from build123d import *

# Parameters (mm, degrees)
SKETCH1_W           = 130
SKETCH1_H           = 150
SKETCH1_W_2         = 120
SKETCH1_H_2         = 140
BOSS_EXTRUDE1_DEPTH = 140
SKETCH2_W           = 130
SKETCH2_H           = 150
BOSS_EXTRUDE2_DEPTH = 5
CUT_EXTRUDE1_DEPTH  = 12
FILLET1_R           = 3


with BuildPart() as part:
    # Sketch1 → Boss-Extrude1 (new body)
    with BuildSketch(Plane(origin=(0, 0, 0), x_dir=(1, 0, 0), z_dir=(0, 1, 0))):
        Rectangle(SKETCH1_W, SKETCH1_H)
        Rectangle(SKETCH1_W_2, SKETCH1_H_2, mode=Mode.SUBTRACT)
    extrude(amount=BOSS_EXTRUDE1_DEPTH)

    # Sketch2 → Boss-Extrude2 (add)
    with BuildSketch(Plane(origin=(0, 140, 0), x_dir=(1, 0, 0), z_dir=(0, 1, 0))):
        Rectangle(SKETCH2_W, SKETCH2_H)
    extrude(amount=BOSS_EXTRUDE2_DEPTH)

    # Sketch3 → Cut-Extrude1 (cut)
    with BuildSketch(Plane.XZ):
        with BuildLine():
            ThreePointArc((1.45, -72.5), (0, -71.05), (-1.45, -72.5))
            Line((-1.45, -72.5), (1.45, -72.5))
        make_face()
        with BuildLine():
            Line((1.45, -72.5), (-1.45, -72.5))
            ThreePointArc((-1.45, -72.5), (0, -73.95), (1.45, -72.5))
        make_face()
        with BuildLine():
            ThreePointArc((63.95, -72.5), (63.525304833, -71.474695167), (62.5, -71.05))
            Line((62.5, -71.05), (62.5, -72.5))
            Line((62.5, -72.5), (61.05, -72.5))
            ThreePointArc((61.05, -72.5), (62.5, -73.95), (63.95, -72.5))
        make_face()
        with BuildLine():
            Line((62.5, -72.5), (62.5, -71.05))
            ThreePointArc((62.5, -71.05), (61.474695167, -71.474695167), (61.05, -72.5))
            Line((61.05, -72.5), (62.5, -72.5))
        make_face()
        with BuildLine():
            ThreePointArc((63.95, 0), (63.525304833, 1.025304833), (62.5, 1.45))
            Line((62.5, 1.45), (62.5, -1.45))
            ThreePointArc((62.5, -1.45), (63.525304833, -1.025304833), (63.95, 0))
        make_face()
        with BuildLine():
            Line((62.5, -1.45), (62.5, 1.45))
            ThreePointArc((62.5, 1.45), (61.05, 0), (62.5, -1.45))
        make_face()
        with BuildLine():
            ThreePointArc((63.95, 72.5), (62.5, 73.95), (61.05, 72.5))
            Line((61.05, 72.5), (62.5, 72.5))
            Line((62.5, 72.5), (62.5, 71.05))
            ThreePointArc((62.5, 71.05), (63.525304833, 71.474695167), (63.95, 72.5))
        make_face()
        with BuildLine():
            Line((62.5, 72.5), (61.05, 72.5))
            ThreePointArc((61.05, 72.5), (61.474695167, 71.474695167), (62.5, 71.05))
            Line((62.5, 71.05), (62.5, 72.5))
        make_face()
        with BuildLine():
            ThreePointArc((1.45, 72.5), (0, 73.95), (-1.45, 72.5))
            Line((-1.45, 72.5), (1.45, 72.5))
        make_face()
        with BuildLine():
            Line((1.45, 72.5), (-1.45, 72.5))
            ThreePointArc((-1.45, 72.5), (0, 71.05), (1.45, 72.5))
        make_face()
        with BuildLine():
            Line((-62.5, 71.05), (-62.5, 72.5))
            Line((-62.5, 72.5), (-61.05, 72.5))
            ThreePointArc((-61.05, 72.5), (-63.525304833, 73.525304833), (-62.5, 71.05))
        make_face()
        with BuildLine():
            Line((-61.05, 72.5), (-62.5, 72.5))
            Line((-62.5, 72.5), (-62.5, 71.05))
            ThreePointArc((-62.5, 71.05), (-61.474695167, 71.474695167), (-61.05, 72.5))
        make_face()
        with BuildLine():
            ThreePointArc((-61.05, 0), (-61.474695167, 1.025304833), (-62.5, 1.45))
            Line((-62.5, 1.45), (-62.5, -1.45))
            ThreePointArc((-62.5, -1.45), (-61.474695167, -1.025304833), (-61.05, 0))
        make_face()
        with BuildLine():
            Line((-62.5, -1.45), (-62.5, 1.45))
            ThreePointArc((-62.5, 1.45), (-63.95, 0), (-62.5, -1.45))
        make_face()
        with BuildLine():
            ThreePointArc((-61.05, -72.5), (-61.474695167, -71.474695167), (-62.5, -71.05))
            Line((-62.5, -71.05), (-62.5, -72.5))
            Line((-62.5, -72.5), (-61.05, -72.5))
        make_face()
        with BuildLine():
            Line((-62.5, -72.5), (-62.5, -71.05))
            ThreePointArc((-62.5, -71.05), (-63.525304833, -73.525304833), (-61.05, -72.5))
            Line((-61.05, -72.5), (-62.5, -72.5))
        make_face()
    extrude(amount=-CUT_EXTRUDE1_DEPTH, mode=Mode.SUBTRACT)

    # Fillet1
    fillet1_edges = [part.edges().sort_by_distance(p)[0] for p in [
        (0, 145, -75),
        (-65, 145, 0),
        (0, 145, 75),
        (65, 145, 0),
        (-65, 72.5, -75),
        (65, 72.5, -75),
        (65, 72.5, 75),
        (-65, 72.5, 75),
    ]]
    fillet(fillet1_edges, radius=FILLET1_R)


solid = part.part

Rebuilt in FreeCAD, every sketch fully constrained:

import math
import FreeCAD as App
import Part
import Sketcher

V = App.Vector


def edges_at(feature, points):
    """Names of the edges that pass closest to the given points."""
    edges = feature.Shape.Edges
    near = lambda p: min(range(len(edges)), key=lambda i: edges[i].distToShape(Part.Vertex(*p))[0])
    return sorted({f"Edge{near(p) + 1}" for p in points})


def add_polygon(sketch, points):
    """Adds a closed chain of lines whose ends are joined by coincident constraints."""
    first, n = sketch.GeometryCount, len(points)
    for a, b in zip(points, points[1:] + points[:1]):
        sketch.addGeometry(Part.LineSegment(App.Vector(*a, 0), App.Vector(*b, 0)), False)
    for i in range(n):
        sketch.addConstraint(Sketcher.Constraint("Coincident", first + i, 2, first + (i + 1) % n, 1))

doc = App.newDocument("Part")
body = doc.addObject("PartDesign::Body", "Body")

sketch1 = body.newObject("Sketcher::SketchObject", "Sketch")
sketch1.AttachmentSupport = (doc.getObject("XZ_Plane"), [""])
sketch1.MapMode = "FlatFace"
add_polygon(sketch1, [(-65, -75), (-65, 75), (65, 75), (65, -75)])
add_polygon(sketch1, [(60, 70), (-60, 70), (-60, -70), (60, -70)])
sketch1.addConstraint([
    Sketcher.Constraint("Vertical", 0),
    Sketcher.Constraint("Horizontal", 1),
    Sketcher.Constraint("Vertical", 2),
    Sketcher.Constraint("Horizontal", 3),
    Sketcher.Constraint("Horizontal", 4),
    Sketcher.Constraint("Vertical", 5),
    Sketcher.Constraint("Horizontal", 6),
    Sketcher.Constraint("Vertical", 7),
    Sketcher.Constraint("Symmetric", 0, 2, 2, 2, -1, 1),
    Sketcher.Constraint("Symmetric", 4, 2, 6, 2, -1, 1),
    Sketcher.Constraint("DistanceX", 1, 1, 1, 2, 130.0),
    Sketcher.Constraint("DistanceX", 4, 2, 4, 1, 120.0),
    Sketcher.Constraint("DistanceY", 0, 1, 0, 2, 150.0),
    Sketcher.Constraint("DistanceY", 5, 2, 5, 1, 140.0),
])
pad1 = body.newObject("PartDesign::Pad", "Pad")
pad1.Profile = sketch1
pad1.Length = 140
pad1.Reversed = True

sketch2 = body.newObject("Sketcher::SketchObject", "Sketch001")
sketch2.AttachmentSupport = (doc.getObject("XZ_Plane"), [""])
sketch2.MapMode = "FlatFace"
sketch2.AttachmentOffset = App.Placement(V(0, 0, -140), App.Rotation())
add_polygon(sketch2, [(-65, -75), (-65, 75), (65, 75), (65, -75)])
sketch2.addConstraint([
    Sketcher.Constraint("Vertical", 0),
    Sketcher.Constraint("Horizontal", 1),
    Sketcher.Constraint("Vertical", 2),
    Sketcher.Constraint("Horizontal", 3),
    Sketcher.Constraint("Symmetric", 0, 2, 2, 2, -1, 1),
    Sketcher.Constraint("DistanceX", 1, 1, 1, 2, 130.0),
    Sketcher.Constraint("DistanceY", 0, 1, 0, 2, 150.0),
])
pad2 = body.newObject("PartDesign::Pad", "Pad001")
pad2.Profile = sketch2
pad2.Length = 5
pad2.Reversed = True

sketch3 = body.newObject("Sketcher::SketchObject", "Sketch002")
sketch3.AttachmentSupport = (doc.getObject("XZ_Plane"), [""])
sketch3.MapMode = "FlatFace"
sketch3.addGeometry([
    Part.Circle(V(0, -72.5, 0), V(0, 0, 1), 1.4),
    Part.ArcOfCircle(Part.Circle(V(62.5, -72.5, 0), V(0, 0, 1), 1.4), math.radians(0), math.radians(90)),
    Part.ArcOfCircle(Part.Circle(V(62.5, -72.5, 0), V(0, 0, 1), 1.4), math.radians(90), math.radians(180)),
    Part.ArcOfCircle(Part.Circle(V(62.5, -72.5, 0), V(0, 0, 1), 1.4), math.radians(180), math.radians(360)),
    Part.ArcOfCircle(Part.Circle(V(62.5, 0, 0), V(0, 0, 1), 1.4), math.radians(0), math.radians(90)),
    Part.ArcOfCircle(Part.Circle(V(62.5, 0, 0), V(0, 0, 1), 1.4), math.radians(90), math.radians(270)),
    Part.ArcOfCircle(Part.Circle(V(62.5, 0, 0), V(0, 0, 1), 1.4), math.radians(-90), math.radians(0)),
    Part.ArcOfCircle(Part.Circle(V(62.5, 72.5, 0), V(0, 0, 1), 1.4), math.radians(0), math.radians(180)),
    Part.ArcOfCircle(Part.Circle(V(62.5, 72.5, 0), V(0, 0, 1), 1.4), math.radians(180), math.radians(270)),
    Part.ArcOfCircle(Part.Circle(V(62.5, 72.5, 0), V(0, 0, 1), 1.4), math.radians(-90), math.radians(0)),
    Part.Circle(V(0, 72.5, 0), V(0, 0, 1), 1.4),
    Part.ArcOfCircle(Part.Circle(V(-62.5, 72.5, 0), V(0, 0, 1), 1.4), math.radians(0), math.radians(270)),
    Part.ArcOfCircle(Part.Circle(V(-62.5, 72.5, 0), V(0, 0, 1), 1.4), math.radians(-90), math.radians(0)),
    Part.ArcOfCircle(Part.Circle(V(-62.5, 0, 0), V(0, 0, 1), 1.4), math.radians(0), math.radians(90)),
    Part.ArcOfCircle(Part.Circle(V(-62.5, 0, 0), V(0, 0, 1), 1.4), math.radians(90), math.radians(270)),
    Part.ArcOfCircle(Part.Circle(V(-62.5, 0, 0), V(0, 0, 1), 1.4), math.radians(-90), math.radians(0)),
    Part.ArcOfCircle(Part.Circle(V(-62.5, -72.5, 0), V(0, 0, 1), 1.4), math.radians(0), math.radians(90)),
    Part.ArcOfCircle(Part.Circle(V(-62.5, -72.5, 0), V(0, 0, 1), 1.4), math.radians(90), math.radians(360)),
], False)
sketch3.addConstraint([
    Sketcher.Constraint("Tangent", 1, 2, 2, 1),
    Sketcher.Constraint("Tangent", 2, 2, 3, 1),
    Sketcher.Constraint("Tangent", 3, 2, 1, 1),
    Sketcher.Constraint("Tangent", 4, 2, 5, 1),
    Sketcher.Constraint("Tangent", 5, 2, 6, 1),
    Sketcher.Constraint("Tangent", 6, 2, 4, 1),
    Sketcher.Constraint("Tangent", 7, 2, 8, 1),
    Sketcher.Constraint("Tangent", 8, 2, 9, 1),
    Sketcher.Constraint("Tangent", 9, 2, 7, 1),
    Sketcher.Constraint("Tangent", 11, 1, 12, 2),
    Sketcher.Constraint("Coincident", 12, 1, 11, 2),
    Sketcher.Constraint("Tangent", 13, 2, 14, 1),
    Sketcher.Constraint("Tangent", 14, 2, 15, 1),
    Sketcher.Constraint("Tangent", 15, 2, 13, 1),
    Sketcher.Constraint("Tangent", 16, 1, 17, 2),
    Sketcher.Constraint("Coincident", 17, 1, 16, 2),
    Sketcher.Constraint("Equal", 0, 1),
    Sketcher.Constraint("Equal", 3, 4),
    Sketcher.Constraint("Equal", 6, 7),
    Sketcher.Constraint("Equal", 9, 10),
    Sketcher.Constraint("Equal", 10, 11),
    Sketcher.Constraint("Equal", 12, 13),
    Sketcher.Constraint("Equal", 15, 16),
    Sketcher.Constraint("Symmetric", 0, 3, 10, 3, -1, 1),
    Sketcher.Constraint("Symmetric", 1, 3, 11, 3, -1, 1),
    Sketcher.Constraint("Symmetric", 4, 3, 13, 3, -1, 1),
    Sketcher.Constraint("Symmetric", 7, 3, 16, 3, -1, 1),
    Sketcher.Constraint("Symmetric", 7, 3, 11, 3, -2),
    Sketcher.Constraint("Symmetric", 4, 2, 13, 2, -2),
    Sketcher.Constraint("PointOnObject", 0, 3, -2),
    Sketcher.Constraint("PointOnObject", 6, 2, -1),
    Sketcher.Constraint("PointOnObject", 15, 2, -1),
    Sketcher.Constraint("Horizontal", 0, 3, 1, 3),
    Sketcher.Constraint("Horizontal", 17, 3, 2, 2),
    Sketcher.Constraint("Horizontal", 2, 2, 3, 2),
    Sketcher.Constraint("Horizontal", 12, 3, 7, 2),
    Sketcher.Constraint("Horizontal", 7, 2, 9, 2),
    Sketcher.Constraint("Horizontal", 9, 2, 11, 1),
    Sketcher.Constraint("Horizontal", 3, 2, 16, 1),
    Sketcher.Constraint("Vertical", 3, 3, 4, 3),
    Sketcher.Constraint("Vertical", 9, 3, 1, 2),
    Sketcher.Constraint("Vertical", 1, 2, 4, 2),
    Sketcher.Constraint("Vertical", 4, 2, 5, 2),
    Sketcher.Constraint("Vertical", 5, 2, 8, 2),
    Sketcher.Constraint("Vertical", 17, 3, 12, 1),
    Sketcher.Constraint("Vertical", 13, 2, 14, 2),
    Sketcher.Constraint("Vertical", 14, 2, 17, 1),
    Sketcher.Constraint("Diameter", 0, 2.9),
    Sketcher.Constraint("DistanceY", 1, 3, 7, 3, 145.0),
    Sketcher.Constraint("DistanceX", 11, 3, 8, 3, 125.0),
])
pocket1 = body.newObject("PartDesign::Pocket", "Pocket")
pocket1.Profile = sketch3
pocket1.Length = 12
doc.recompute()

fillet = body.newObject("PartDesign::Fillet", "Fillet")
fillet.Base = (pocket1, edges_at(pocket1, [
    (0, 145, -75),
    (-65, 145, 0),
    (0, 145, 75),
    (65, 145, 0),
    (-65, 72.5, -75),
    (65, 72.5, -75),
    (65, 72.5, 75),
    (-65, 72.5, 75),
]))
fillet.Radius = 3

doc.recompute()
